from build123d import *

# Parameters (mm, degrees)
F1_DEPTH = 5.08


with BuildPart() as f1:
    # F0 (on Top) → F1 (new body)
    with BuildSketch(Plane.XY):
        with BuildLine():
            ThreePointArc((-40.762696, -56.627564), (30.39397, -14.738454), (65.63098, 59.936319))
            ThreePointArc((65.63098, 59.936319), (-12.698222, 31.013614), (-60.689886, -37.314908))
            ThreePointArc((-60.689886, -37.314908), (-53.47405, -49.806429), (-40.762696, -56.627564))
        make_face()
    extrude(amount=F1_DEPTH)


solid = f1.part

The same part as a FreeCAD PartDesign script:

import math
import FreeCAD as App
import Part
import Sketcher
from FreeCAD import Vector
Q = App.Units.Quantity

doc = App.newDocument("Part")
body = doc.addObject("PartDesign::Body", "Body")

# Sketch on XY plane
sketch1 = body.newObject("Sketcher::SketchObject", "Sketch")
sketch1.AttachmentSupport = (doc.getObject("XY_Plane"), [""])
sketch1.MapMode = "FlatFace"
sketch1.addGeometry([
    Part.ArcOfCircle(Part.Circle(Vector(-73.152126, 79.773238, 0), Vector(0, 0, 1), 140.19363), math.radians(-76.642072), math.radians(-8.134456)),
    Part.ArcOfCircle(Part.Circle(Vector(72.82427, -80.072648, 0), Vector(0, 0, 1), 140.193631), math.radians(92.941119), math.radians(162.242402)),
    Part.ArcOfCircle(Part.Circle(Vector(-35.132766, -30.88152, 0), Vector(0, 0, 1), 26.354409), math.radians(-165.870728), math.radians(-102.334804)),
], False)
sketch1.addConstraint([
    Sketcher.Constraint("Coincident", 0, 2, 1, 1),
    Sketcher.Constraint("Coincident", 1, 2, 2, 1),
    Sketcher.Constraint("Coincident", 2, 2, 0, 1),
    Sketcher.Constraint("Equal", 0, 1),
    Sketcher.Constraint("Radius", 0, Q("140.19363 mm")),
    Sketcher.Constraint("Radius", 2, Q("26.354409 mm")),
    Sketcher.Constraint("DistanceY", 2, 2, 0, 3, Q("136.400802 mm")),
    Sketcher.Constraint("DistanceX", -1, 1, 1, 3, Q("72.82427 mm")),
    Sketcher.Constraint("DistanceY", 2, 3, -1, 1, Q("30.88152 mm")),
    Sketcher.Constraint("DistanceX", -1, 1, 0, 2, Q("65.63098 mm")),
    Sketcher.Constraint("DistanceY", -1, 1, 0, 2, Q("59.936319 mm")),
    Sketcher.Constraint("DistanceY", 1, 2, -1, 1, Q("37.314908 mm")),
])
pad1 = body.newObject("PartDesign::Pad", "Pad")
pad1.Profile = sketch1
pad1.Length = Q("0.2 in")

doc.recompute()
